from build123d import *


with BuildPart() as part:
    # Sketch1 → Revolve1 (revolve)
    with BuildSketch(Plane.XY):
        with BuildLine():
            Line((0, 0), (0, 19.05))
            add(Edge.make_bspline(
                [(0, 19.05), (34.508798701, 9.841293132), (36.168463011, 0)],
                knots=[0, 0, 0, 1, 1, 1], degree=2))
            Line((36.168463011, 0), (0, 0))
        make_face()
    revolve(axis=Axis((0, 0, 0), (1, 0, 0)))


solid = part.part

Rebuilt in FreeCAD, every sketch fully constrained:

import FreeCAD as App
import Part
import Sketcher
from FreeCAD import Vector

doc = App.newDocument("Part")
body = doc.addObject("PartDesign::Body", "Body")

# Sketch on XY plane
sketch1 = body.newObject("Sketcher::SketchObject", "Sketch")
sketch1.AttachmentSupport = (doc.getObject("XY_Plane"), [""])
sketch1.MapMode = "FlatFace"
sketch1.addGeometry([
    Part.LineSegment(Vector(0, 19.05, 0), Vector(0, 0, 0)),
    Part.LineSegment(Vector(0, 0, 0), Vector(36.168463, 0, 0)),
    Part.BSplineCurve([Vector(0, 19.05, 0), Vector(34.508799, 9.841293, 0), Vector(36.168463, 0, 0)], [3, 3], [0, 1], False, 2, [1, 1, 1], False),
], False)
sketch1.addConstraint([
    Sketcher.Constraint("Block", 2),
    Sketcher.Constraint("Coincident", 0, 2, 1, 1),
    Sketcher.Constraint("Coincident", 1, 2, 2, 2),
    Sketcher.Constraint("Coincident", 2, 1, 0, 1),
    Sketcher.Constraint("Vertical", 0),
    Sketcher.Constraint("Horizontal", 1),
])
revolution = body.newObject("PartDesign::Revolution", "Revolution")
revolution.Profile = sketch1
revolution.ReferenceAxis = (sketch1, ["H_Axis"])
revolution.Angle = 360

doc.recompute()
